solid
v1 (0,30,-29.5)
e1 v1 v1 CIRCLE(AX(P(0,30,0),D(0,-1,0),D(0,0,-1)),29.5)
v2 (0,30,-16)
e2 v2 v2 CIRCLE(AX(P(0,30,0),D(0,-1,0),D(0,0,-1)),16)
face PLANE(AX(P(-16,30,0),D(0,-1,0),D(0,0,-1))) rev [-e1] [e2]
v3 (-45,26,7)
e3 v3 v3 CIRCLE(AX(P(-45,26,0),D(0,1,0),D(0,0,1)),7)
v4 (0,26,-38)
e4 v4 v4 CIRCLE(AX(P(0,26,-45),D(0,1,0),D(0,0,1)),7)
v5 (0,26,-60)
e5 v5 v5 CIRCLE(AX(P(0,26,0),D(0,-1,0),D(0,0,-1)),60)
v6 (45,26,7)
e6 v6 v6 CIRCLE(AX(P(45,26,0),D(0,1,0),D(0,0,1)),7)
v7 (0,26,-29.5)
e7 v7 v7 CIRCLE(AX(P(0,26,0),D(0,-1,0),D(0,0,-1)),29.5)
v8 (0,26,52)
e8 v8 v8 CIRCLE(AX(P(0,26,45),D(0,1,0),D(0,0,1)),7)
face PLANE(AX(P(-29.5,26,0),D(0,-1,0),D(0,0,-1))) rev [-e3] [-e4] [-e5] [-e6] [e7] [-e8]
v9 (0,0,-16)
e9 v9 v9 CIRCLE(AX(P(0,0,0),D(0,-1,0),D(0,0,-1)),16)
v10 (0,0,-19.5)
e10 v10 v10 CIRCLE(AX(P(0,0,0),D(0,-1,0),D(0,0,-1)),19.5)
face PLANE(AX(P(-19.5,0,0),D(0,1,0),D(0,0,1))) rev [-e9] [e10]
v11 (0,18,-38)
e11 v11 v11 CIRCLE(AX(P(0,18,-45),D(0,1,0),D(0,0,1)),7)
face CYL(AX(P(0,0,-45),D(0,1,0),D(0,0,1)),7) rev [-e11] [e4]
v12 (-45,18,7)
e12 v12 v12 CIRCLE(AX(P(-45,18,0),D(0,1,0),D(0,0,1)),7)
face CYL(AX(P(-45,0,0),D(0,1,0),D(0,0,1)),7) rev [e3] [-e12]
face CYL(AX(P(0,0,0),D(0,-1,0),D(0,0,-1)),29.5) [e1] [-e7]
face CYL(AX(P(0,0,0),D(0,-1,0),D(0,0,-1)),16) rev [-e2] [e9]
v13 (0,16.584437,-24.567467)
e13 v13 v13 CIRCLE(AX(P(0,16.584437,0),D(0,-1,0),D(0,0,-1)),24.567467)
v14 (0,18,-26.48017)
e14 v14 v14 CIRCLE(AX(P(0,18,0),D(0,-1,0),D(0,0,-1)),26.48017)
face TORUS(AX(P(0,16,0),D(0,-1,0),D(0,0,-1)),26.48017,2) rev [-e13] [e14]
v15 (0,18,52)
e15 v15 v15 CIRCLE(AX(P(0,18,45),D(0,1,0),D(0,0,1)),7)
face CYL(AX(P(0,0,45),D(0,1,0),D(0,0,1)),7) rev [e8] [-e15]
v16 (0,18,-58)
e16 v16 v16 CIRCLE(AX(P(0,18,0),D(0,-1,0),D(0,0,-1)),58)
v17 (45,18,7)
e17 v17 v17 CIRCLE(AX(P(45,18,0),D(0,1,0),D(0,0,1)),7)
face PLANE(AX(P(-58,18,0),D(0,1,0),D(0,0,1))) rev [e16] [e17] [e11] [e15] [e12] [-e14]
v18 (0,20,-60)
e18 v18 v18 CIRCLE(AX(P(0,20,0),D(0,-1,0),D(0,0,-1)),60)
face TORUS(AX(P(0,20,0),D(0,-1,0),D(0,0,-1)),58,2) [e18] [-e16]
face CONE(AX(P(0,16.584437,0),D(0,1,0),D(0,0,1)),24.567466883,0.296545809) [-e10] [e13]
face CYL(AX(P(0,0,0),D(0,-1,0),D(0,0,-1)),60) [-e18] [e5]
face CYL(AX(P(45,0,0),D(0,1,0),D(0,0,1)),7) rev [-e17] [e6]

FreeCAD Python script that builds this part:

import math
import FreeCAD as App
import Part
import Sketcher
from FreeCAD import Vector
Q = App.Units.Quantity

doc = App.newDocument("Part")
body = doc.addObject("PartDesign::Body", "Body")

# Sketch on XY plane
sketch1 = body.newObject("Sketcher::SketchObject", "Sketch")
sketch1.AttachmentSupport = (doc.getObject("XY_Plane"), [""])
sketch1.MapMode = "FlatFace"
sketch1.addGeometry([
    Part.LineSegment(Vector(-16, 0, 0), Vector(-16, 30, 0)),  # 0
    Part.LineSegment(Vector(-16, 30, 0), Vector(-29.5, 30, 0)),  # 1
    Part.LineSegment(Vector(-29.5, 30, 0), Vector(-29.5, 26, 0)),  # 2
    Part.LineSegment(Vector(-29.5, 26, 0), Vector(-60, 26, 0)),  # 3
    Part.LineSegment(Vector(-60, 26, 0), Vector(-60, 20, 0)),  # 4
    Part.ArcOfCircle(Part.Circle(Vector(-58, 20, 0), Vector(0, 0, 1), 2), math.radians(-180), math.radians(-90)),  # 5
    Part.LineSegment(Vector(-58, 18, 0), Vector(-26.5, 18, 0)),  # 6
    Part.ArcOfCircle(Part.Circle(Vector(-26.5, 16, 0), Vector(0, 0, 1), 2), math.radians(17), math.radians(90)),  # 7
    Part.LineSegment(Vector(-24.6, 16.6, 0), Vector(-19.5, 0, 0)),  # 8
    Part.LineSegment(Vector(-19.5, 0, 0), Vector(-16, 0, 0)),  # 9
], False)
sketch1.addConstraint([
    Sketcher.Constraint("Coincident", 0, 2, 1, 1),
    Sketcher.Constraint("Coincident", 1, 2, 2, 1),
    Sketcher.Constraint("Coincident", 2, 2, 3, 1),
    Sketcher.Constraint("Coincident", 3, 2, 4, 1),
    Sketcher.Constraint("Tangent", 4, 2, 5, 1),
    Sketcher.Constraint("Tangent", 5, 2, 6, 1),
    Sketcher.Constraint("Tangent", 6, 2, 7, 2),
    Sketcher.Constraint("Tangent", 7, 1, 8, 1),
    Sketcher.Constraint("Coincident", 8, 2, 9, 1),
    Sketcher.Constraint("Coincident", 9, 2, 0, 1),
    Sketcher.Constraint("Vertical", 0),
    Sketcher.Constraint("Horizontal", 1),
    Sketcher.Constraint("Vertical", 2),
    Sketcher.Constraint("Horizontal", 3),
    Sketcher.Constraint("Vertical", 4),
    Sketcher.Constraint("Horizontal", 6),
    Sketcher.Constraint("Horizontal", 9),
    Sketcher.Constraint("Equal", 5, 7),
    Sketcher.Constraint("PointOnObject", 8, 2, -1),
    Sketcher.Constraint("Radius", 5, Q("2 mm")),
    Sketcher.Constraint("DistanceY", 0, 1, 0, 2, Q("30 mm")),
    Sketcher.Constraint("DistanceY", 2, 2, 2, 1, Q("4 mm")),
    Sketcher.Constraint("DistanceY", 4, 2, 4, 1, Q("6 mm")),
    Sketcher.Constraint("DistanceX", 1, 2, 1, 1, Q("13.5 mm")),
    Sketcher.Constraint("DistanceX", 3, 2, 3, 1, Q("30.5 mm")),
    Sketcher.Constraint("DistanceX", 9, 1, 9, 2, Q("3.5 mm")),
    Sketcher.Constraint("DistanceX", 5, 3, -1, 1, Q("58 mm")),
    Sketcher.Constraint("DistanceX", 6, 1, 6, 2, Q("31.51983 mm")),
])
revolution = body.newObject("PartDesign::Revolution", "Revolution")
revolution.Profile = sketch1
revolution.ReferenceAxis = (sketch1, ["V_Axis"])
revolution.Angle = 360

# Sketch on XZ plane
sketch2 = body.newObject("Sketcher::SketchObject", "Sketch001")
sketch2.AttachmentSupport = (doc.getObject("XZ_Plane"), [""])
sketch2.MapMode = "FlatFace"
sketch2.AttachmentOffset = App.Placement(Vector(0, 0, -26), App.Rotation())
sketch2.addGeometry([
    Part.Circle(Vector(-45, 0, 0), Vector(0, 0, 1), 7),
    Part.Circle(Vector(0, -45, 0), Vector(0, 0, 1), 7),
    Part.Circle(Vector(45, 0, 0), Vector(0, 0, 1), 7),
    Part.Circle(Vector(0, 45, 0), Vector(0, 0, 1), 7),
], False)
sketch2.addConstraint([
    Sketcher.Constraint("Equal", 0, 1),
    Sketcher.Constraint("Equal", 1, 2),
    Sketcher.Constraint("Equal", 2, 3),
    Sketcher.Constraint("Symmetric", 0, 3, 2, 3, -1, 1),
    Sketcher.Constraint("Symmetric", 1, 3, 3, 3, -1, 1),
    Sketcher.Constraint("PointOnObject", 0, 3, -1),
    Sketcher.Constraint("PointOnObject", 1, 3, -2),
    Sketcher.Constraint("Diameter", 0, Q("14 mm")),
    Sketcher.Constraint("DistanceX", 0, 3, -1, 1, Q("45 mm")),
    Sketcher.Constraint("DistanceY", 1, 3, -1, 1, Q("45 mm")),
])
pocket1 = body.newObject("PartDesign::Pocket", "Pocket")
pocket1.Profile = sketch2
pocket1.Type = "ThroughAll"
pocket1.Reversed = True

doc.recompute()
